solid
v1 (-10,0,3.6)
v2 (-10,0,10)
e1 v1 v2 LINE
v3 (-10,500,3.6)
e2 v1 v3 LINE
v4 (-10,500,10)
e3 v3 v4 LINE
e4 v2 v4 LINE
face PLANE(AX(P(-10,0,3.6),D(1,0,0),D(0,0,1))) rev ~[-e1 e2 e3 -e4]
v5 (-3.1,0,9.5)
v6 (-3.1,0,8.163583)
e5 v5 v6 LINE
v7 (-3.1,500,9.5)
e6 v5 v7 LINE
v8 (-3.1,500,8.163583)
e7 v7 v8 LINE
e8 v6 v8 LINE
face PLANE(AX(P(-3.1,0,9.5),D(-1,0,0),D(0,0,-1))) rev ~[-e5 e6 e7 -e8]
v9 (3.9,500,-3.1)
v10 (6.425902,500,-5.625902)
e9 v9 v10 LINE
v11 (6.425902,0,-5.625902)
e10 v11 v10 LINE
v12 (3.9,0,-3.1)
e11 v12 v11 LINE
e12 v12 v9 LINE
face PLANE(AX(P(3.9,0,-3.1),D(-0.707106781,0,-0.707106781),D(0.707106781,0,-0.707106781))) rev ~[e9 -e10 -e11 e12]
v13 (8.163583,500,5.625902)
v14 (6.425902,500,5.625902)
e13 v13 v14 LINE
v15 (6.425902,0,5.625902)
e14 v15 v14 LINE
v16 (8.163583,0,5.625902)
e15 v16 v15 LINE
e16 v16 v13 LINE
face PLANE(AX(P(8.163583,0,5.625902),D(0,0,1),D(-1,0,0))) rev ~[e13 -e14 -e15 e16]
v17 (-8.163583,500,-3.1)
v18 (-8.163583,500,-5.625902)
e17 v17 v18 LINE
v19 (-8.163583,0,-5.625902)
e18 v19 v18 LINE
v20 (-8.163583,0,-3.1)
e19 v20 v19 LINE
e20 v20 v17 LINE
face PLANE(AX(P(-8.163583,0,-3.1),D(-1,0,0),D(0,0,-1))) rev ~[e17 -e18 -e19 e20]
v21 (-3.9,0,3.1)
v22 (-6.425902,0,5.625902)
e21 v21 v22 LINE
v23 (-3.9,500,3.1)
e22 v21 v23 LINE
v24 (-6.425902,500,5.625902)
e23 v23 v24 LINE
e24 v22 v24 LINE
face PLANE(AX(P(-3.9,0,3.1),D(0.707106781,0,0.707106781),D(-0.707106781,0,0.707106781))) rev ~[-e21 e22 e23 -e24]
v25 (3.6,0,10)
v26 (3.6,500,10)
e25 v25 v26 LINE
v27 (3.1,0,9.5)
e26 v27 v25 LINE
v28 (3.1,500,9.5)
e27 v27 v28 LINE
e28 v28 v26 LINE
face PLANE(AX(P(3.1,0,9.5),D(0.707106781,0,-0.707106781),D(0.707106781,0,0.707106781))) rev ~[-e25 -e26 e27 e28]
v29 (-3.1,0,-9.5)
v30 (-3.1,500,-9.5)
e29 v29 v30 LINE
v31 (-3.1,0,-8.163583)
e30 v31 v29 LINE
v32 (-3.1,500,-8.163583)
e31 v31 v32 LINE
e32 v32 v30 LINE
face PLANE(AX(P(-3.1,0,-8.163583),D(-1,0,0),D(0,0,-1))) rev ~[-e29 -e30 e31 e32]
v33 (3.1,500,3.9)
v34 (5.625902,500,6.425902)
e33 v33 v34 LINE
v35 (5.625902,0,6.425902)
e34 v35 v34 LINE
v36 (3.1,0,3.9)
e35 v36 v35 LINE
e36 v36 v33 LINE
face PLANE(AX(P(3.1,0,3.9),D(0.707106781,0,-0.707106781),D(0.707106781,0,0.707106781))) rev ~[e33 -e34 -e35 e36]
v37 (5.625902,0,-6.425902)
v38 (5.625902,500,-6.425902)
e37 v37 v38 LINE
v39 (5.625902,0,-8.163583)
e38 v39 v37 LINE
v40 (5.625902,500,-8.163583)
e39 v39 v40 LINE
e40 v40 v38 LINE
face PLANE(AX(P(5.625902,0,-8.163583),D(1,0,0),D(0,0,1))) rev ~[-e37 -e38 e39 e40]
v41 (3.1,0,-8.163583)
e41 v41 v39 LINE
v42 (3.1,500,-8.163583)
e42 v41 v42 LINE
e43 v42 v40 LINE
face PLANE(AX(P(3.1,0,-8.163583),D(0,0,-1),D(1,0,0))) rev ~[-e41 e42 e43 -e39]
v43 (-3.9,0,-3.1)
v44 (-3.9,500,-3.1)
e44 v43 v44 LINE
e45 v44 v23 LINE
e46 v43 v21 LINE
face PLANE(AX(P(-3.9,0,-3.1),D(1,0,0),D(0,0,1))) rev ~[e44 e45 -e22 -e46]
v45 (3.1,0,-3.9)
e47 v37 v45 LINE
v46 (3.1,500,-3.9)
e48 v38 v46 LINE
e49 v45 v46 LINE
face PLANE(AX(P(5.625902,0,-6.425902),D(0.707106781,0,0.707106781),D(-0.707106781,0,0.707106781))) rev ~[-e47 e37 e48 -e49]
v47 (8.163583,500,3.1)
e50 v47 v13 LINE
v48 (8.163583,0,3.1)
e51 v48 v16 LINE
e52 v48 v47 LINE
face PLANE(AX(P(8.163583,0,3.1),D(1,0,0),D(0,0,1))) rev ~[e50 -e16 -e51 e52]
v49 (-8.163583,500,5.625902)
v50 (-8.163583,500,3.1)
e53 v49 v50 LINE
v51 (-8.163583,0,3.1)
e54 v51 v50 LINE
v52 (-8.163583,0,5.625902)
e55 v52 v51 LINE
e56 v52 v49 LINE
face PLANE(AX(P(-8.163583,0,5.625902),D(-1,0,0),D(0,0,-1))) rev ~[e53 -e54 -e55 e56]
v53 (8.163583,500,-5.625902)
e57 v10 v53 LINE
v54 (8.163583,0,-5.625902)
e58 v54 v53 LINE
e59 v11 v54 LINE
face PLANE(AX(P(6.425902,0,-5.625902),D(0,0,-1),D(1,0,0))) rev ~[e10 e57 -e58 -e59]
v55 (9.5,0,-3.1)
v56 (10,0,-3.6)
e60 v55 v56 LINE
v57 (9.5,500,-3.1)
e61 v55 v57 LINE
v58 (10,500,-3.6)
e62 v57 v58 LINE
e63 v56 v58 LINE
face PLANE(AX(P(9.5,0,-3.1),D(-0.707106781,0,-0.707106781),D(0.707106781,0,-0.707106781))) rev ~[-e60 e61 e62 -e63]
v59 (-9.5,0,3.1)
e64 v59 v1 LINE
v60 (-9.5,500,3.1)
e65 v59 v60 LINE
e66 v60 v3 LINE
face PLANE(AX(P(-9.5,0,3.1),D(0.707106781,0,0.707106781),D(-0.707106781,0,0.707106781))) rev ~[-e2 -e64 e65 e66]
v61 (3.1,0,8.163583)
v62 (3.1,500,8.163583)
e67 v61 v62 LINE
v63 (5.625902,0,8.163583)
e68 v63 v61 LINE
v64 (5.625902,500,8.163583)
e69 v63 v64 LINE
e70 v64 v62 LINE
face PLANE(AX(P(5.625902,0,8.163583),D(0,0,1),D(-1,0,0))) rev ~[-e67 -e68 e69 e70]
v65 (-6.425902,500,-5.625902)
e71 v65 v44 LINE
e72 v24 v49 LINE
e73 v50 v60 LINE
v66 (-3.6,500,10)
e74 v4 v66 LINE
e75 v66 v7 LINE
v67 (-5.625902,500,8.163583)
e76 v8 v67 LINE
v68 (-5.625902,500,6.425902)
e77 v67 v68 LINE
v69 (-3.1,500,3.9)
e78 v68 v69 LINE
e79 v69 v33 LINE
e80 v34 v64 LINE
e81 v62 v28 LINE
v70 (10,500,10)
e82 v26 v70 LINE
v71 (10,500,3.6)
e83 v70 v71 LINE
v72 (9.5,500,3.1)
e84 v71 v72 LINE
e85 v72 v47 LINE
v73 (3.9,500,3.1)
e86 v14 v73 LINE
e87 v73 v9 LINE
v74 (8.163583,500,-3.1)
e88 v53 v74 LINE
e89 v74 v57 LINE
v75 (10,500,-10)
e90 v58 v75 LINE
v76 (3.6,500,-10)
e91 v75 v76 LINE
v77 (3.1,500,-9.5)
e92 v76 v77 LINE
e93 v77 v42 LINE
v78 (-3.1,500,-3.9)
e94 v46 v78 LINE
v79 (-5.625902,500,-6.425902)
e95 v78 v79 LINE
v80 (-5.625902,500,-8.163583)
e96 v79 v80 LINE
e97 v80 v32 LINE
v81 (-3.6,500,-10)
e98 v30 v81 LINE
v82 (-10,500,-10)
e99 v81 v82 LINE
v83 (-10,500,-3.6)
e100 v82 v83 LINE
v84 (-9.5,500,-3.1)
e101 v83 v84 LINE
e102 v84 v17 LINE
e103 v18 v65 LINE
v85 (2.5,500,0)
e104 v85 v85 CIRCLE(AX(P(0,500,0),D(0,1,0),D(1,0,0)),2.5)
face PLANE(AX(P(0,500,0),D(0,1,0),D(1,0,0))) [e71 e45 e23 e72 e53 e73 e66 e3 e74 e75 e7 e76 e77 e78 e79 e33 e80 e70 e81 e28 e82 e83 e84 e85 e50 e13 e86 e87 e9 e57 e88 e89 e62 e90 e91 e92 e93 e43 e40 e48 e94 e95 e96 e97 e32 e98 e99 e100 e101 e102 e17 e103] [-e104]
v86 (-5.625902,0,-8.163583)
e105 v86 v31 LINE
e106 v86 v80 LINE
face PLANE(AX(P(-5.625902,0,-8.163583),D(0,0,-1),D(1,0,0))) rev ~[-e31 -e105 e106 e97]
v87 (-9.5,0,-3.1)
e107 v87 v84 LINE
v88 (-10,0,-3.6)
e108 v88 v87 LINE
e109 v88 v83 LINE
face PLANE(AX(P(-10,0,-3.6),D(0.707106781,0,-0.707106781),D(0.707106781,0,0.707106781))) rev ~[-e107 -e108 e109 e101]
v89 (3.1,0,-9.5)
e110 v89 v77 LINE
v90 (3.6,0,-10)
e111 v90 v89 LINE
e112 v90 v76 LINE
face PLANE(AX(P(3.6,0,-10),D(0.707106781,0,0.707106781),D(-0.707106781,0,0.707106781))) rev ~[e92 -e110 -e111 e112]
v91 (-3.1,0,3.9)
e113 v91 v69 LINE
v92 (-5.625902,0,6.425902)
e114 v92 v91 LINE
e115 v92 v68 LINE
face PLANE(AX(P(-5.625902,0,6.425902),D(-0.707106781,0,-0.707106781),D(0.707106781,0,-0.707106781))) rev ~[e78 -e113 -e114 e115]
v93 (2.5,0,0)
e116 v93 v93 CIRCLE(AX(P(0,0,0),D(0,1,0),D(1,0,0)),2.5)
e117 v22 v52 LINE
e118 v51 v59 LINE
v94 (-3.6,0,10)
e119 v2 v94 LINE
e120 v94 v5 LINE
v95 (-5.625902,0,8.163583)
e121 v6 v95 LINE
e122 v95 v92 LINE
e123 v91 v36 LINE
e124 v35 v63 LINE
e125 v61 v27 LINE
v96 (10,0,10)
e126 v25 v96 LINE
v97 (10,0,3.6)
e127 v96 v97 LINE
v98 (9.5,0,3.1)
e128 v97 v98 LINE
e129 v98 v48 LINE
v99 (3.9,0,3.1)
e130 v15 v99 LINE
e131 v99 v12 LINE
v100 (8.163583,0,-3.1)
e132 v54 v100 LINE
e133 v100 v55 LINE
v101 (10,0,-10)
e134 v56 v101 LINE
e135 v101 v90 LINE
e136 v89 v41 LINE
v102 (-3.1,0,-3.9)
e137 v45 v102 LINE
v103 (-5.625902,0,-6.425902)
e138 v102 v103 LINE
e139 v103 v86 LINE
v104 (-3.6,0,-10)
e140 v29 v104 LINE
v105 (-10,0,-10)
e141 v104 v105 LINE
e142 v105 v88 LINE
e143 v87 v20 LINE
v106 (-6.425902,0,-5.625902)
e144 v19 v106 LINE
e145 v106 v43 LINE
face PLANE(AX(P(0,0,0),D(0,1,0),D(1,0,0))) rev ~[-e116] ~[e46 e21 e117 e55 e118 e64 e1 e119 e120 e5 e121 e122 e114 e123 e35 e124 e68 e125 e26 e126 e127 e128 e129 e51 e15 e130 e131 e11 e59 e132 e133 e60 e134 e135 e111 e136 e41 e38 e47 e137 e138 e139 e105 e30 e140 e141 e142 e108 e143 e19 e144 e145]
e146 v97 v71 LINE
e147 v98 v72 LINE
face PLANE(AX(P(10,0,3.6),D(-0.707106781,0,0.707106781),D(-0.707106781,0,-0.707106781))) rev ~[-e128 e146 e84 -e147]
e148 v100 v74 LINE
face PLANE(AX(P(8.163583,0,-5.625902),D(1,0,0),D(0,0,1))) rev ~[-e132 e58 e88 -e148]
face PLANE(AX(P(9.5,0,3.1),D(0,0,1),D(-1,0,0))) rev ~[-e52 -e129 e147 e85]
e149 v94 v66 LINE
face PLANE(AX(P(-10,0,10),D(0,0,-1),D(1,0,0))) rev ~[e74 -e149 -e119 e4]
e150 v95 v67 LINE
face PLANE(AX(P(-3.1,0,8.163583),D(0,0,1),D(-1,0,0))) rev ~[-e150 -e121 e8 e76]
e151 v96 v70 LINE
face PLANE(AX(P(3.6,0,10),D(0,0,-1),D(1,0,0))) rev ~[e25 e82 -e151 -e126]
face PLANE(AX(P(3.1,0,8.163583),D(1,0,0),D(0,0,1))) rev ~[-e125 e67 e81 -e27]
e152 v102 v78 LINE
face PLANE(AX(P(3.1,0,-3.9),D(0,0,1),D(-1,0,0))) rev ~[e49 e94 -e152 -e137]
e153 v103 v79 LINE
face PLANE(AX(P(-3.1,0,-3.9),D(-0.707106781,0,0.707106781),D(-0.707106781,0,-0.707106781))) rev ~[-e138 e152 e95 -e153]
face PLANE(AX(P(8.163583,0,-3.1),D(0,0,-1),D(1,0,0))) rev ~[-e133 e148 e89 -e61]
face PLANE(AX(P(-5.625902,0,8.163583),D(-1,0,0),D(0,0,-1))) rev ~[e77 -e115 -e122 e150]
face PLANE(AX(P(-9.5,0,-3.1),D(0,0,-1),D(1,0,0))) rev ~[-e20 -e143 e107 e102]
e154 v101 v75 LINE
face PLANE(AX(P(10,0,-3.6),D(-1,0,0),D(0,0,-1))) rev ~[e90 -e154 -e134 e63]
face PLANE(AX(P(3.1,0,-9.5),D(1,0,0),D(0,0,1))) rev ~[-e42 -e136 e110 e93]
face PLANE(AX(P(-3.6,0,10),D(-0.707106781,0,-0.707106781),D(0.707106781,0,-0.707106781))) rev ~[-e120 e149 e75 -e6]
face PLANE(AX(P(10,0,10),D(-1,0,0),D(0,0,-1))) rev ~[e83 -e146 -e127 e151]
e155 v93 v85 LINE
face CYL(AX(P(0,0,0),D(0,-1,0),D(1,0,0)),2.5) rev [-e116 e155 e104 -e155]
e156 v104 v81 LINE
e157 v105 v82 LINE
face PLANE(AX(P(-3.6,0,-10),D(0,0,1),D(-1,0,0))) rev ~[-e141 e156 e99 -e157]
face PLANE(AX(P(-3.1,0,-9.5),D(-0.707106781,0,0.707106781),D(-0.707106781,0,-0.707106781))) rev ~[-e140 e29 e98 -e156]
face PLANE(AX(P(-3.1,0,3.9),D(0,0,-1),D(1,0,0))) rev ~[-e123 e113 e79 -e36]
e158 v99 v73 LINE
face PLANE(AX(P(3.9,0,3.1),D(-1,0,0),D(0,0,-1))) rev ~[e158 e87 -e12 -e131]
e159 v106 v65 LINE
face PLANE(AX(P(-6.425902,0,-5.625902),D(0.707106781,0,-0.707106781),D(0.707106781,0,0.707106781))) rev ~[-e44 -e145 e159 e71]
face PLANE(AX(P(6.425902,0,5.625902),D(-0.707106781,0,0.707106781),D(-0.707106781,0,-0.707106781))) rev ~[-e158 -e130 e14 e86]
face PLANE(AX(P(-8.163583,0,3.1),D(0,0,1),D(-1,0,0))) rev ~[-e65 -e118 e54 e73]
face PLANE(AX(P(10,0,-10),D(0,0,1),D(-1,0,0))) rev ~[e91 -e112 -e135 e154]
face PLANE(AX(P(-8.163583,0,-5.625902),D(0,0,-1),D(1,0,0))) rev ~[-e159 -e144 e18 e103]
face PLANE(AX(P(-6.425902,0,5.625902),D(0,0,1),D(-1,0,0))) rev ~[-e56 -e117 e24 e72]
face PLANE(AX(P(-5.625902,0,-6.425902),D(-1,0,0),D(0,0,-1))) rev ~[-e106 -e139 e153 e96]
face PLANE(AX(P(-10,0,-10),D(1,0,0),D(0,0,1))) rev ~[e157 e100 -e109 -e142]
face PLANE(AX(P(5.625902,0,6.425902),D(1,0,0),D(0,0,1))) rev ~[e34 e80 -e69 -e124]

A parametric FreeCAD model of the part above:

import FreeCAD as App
import Part
import Sketcher
from FreeCAD import Vector


def add_polygon(sketch, points):
    """Adds a closed chain of lines whose ends are joined by coincident constraints."""
    first, n = sketch.GeometryCount, len(points)
    for a, b in zip(points, points[1:] + points[:1]):
        sketch.addGeometry(Part.LineSegment(App.Vector(*a, 0), App.Vector(*b, 0)), False)
    for i in range(n):
        sketch.addConstraint(Sketcher.Constraint("Coincident", first + i, 2, first + (i + 1) % n, 1))

doc = App.newDocument("Part")
body = doc.addObject("PartDesign::Body", "Body")

# Sketch on XZ plane
sketch1 = body.newObject("Sketcher::SketchObject", "Sketch")
sketch1.AttachmentSupport = (doc.getObject("XZ_Plane"), [""])
sketch1.MapMode = "FlatFace"
add_polygon(sketch1, [(3.9, -3.1), (6.425902, -5.625902), (8.163583, -5.625902), (8.163583, -3.1), (9.5, -3.1), (10, -3.6), (10, -10), (3.6, -10), (3.1, -9.5), (3.1, -8.163583), (5.625902, -8.163583), (5.625902, -6.425902), (3.1, -3.9), (-3.1, -3.9), (-5.625902, -6.425902), (-5.625902, -8.163583), (-3.1, -8.163583), (-3.1, -9.5), (-3.6, -10), (-10, -10), (-10, -3.6), (-9.5, -3.1), (-8.163583, -3.1), (-8.163583, -5.625902), (-6.425902, -5.625902), (-3.9, -3.1), (-3.9, 3.1), (-6.425902, 5.625902), (-8.163583, 5.625902), (-8.163583, 3.1), (-9.5, 3.1), (-10, 3.6), (-10, 10), (-3.6, 10), (-3.1, 9.5), (-3.1, 8.163583), (-5.625902, 8.163583), (-5.625902, 6.425902), (-3.1, 3.9), (3.1, 3.9), (5.625902, 6.425902), (5.625902, 8.163583), (3.1, 8.163583), (3.1, 9.5), (3.6, 10), (10, 10), (10, 3.6), (9.5, 3.1), (8.163583, 3.1), (8.163583, 5.625902), (6.425902, 5.625902), (3.9, 3.1)])  # lines 0-51
sketch1.addGeometry(Part.Circle(Vector(0, 0, 0), Vector(0, 0, 1), 2.5), False)  # 52
sketch1.addConstraint([
    Sketcher.Constraint("Horizontal", 1),
    Sketcher.Constraint("Vertical", 2),
    Sketcher.Constraint("Horizontal", 3),
    Sketcher.Constraint("Vertical", 5),
    Sketcher.Constraint("Horizontal", 6),
    Sketcher.Constraint("Vertical", 8),
    Sketcher.Constraint("Horizontal", 9),
    Sketcher.Constraint("Vertical", 10),
    Sketcher.Constraint("Horizontal", 12),
    Sketcher.Constraint("Vertical", 14),
    Sketcher.Constraint("Horizontal", 15),
    Sketcher.Constraint("Vertical", 16),
    Sketcher.Constraint("Horizontal", 18),
    Sketcher.Constraint("Vertical", 19),
    Sketcher.Constraint("Horizontal", 21),
    Sketcher.Constraint("Vertical", 22),
    Sketcher.Constraint("Horizontal", 23),
    Sketcher.Constraint("Vertical", 25),
    Sketcher.Constraint("Horizontal", 27),
    Sketcher.Constraint("Vertical", 28),
    Sketcher.Constraint("Horizontal", 29),
    Sketcher.Constraint("Vertical", 31),
    Sketcher.Constraint("Horizontal", 32),
    Sketcher.Constraint("Vertical", 34),
    Sketcher.Constraint("Horizontal", 35),
    Sketcher.Constraint("Vertical", 36),
    Sketcher.Constraint("Horizontal", 38),
    Sketcher.Constraint("Vertical", 40),
    Sketcher.Constraint("Horizontal", 41),
    Sketcher.Constraint("Vertical", 42),
    Sketcher.Constraint("Horizontal", 44),
    Sketcher.Constraint("Vertical", 45),
    Sketcher.Constraint("Horizontal", 47),
    Sketcher.Constraint("Vertical", 48),
    Sketcher.Constraint("Horizontal", 49),
    Sketcher.Constraint("Vertical", 51),
    Sketcher.Constraint("Coincident", 52, 3, -1, 1),
    Sketcher.Constraint("Symmetric", 0, 2, 26, 2, -1, 1),
    Sketcher.Constraint("Symmetric", 2, 2, 28, 2, -1, 1),
    Sketcher.Constraint("Symmetric", 4, 2, 30, 2, -1, 1),
    Sketcher.Constraint("Symmetric", 6, 2, 32, 2, -1, 1),
    Sketcher.Constraint("Symmetric", 7, 2, 33, 2, -1, 1),
    Sketcher.Constraint("Symmetric", 9, 2, 35, 2, -1, 1),
    Sketcher.Constraint("Symmetric", 11, 2, 37, 2, -1, 1),
    Sketcher.Constraint("Symmetric", 13, 2, 39, 2, -1, 1),
    Sketcher.Constraint("Symmetric", 15, 2, 41, 2, -1, 1),
    Sketcher.Constraint("Symmetric", 17, 2, 43, 2, -1, 1),
    Sketcher.Constraint("Symmetric", 19, 2, 45, 2, -1, 1),
    Sketcher.Constraint("Symmetric", 20, 2, 46, 2, -1, 1),
    Sketcher.Constraint("Symmetric", 22, 2, 48, 2, -1, 1),
    Sketcher.Constraint("Symmetric", 24, 2, 50, 2, -1, 1),
    Sketcher.Constraint("Symmetric", 10, 2, 13, 2, -2),
    Sketcher.Constraint("Symmetric", 8, 2, 15, 2, -2),
    Sketcher.Constraint("Symmetric", 6, 2, 17, 2, -2),
    Sketcher.Constraint("Symmetric", 4, 2, 19, 2, -2),
    Sketcher.Constraint("Symmetric", 3, 2, 20, 2, -2),
    Sketcher.Constraint("Symmetric", 1, 2, 22, 2, -2),
    Sketcher.Constraint("Parallel", 0, 4),
    Sketcher.Constraint("Parallel", 4, 7),
    Sketcher.Constraint("Parallel", 7, 11),
    Sketcher.Constraint("Perpendicular", 11, 13),
    Sketcher.Constraint("Parallel", 13, 17),
    Sketcher.Constraint("Parallel", 17, 20),
    Sketcher.Constraint("Parallel", 20, 24),
    Sketcher.Constraint("Perpendicular", 24, 26),
    Sketcher.Constraint("Parallel", 26, 30),
    Sketcher.Constraint("Parallel", 33, 37),
    Sketcher.Constraint("Perpendicular", 37, 39),
    Sketcher.Constraint("Parallel", 39, 43),
    Sketcher.Constraint("Parallel", 46, 50),
    Sketcher.Constraint("Horizontal", 21, 2, 24, 2),
    Sketcher.Constraint("Horizontal", 25, 2, 28, 2),
    Sketcher.Constraint("Vertical", 8, 2, 11, 2),
    Sketcher.Constraint("Equal", 41, 2),
    Sketcher.Constraint("Equal", 44, 5),
    Sketcher.Constraint("Equal", 47, 8),
    Sketcher.Constraint("Equal", 49, 10),
    Sketcher.Constraint("Equal", 38, 25),
    Sketcher.Constraint("Equal", 4, 7),
    Sketcher.Constraint("Diameter", 52, 5.0),
    Sketcher.Constraint("DistanceX", 6, 2, 6, 1, 6.4),
    Sketcher.Constraint("DistanceX", 12, 2, 12, 1, 6.2),
    Sketcher.Constraint("DistanceX", -1, 1, 4, 2, 10.0),
    Sketcher.Constraint("DistanceY", 12, 2, 25, 2, 7.0),
    Sketcher.Constraint("DistanceX", 9, 1, 9, 2, 2.525902),
    Sketcher.Constraint("DistanceX", 1, 1, 1, 2, 1.737681),
])
pad1 = body.newObject("PartDesign::Pad", "Pad")
pad1.Profile = sketch1
pad1.Length = 500
pad1.Reversed = True

doc.recompute()
